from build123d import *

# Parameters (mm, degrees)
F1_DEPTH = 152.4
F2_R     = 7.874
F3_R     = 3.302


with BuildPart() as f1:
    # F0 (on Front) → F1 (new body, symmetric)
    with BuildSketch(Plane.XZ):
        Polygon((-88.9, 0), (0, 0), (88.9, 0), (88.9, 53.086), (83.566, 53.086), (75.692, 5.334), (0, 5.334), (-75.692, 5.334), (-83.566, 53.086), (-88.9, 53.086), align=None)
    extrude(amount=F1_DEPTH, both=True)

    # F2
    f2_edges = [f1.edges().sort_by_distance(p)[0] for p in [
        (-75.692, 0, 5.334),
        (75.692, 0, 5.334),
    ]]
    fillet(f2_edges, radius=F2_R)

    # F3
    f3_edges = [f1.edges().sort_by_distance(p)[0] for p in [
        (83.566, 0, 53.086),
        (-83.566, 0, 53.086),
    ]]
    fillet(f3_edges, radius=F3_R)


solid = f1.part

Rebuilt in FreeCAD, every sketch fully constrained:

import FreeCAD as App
import Part
import Sketcher
Q = App.Units.Quantity


def edges_at(feature, points):
    """Names of the edges that pass closest to the given points."""
    edges = feature.Shape.Edges
    near = lambda p: min(range(len(edges)), key=lambda i: edges[i].distToShape(Part.Vertex(*p))[0])
    return sorted({f"Edge{near(p) + 1}" for p in points})

doc = App.newDocument("Part")
params = doc.addObject("Spreadsheet::Sheet", "Params")
for row, (alias, value) in enumerate([
    ("sketch1_width", "7 in"),
    ("sketch1_width2", "0.21 in"),
    ("sketch1_width3", "5.96 in"),
    ("sketch1_height", "2.09 in"),
    ("pad1_length", "12 in"),
    ("fillet_radius", "0.31 in"),
    ("fillet2_radius", "0.13 in"),
], start=1):
    params.set(f"A{row}", alias)
    params.set(f"B{row}", "=" + value)
    params.setAlias(f"B{row}", alias)

body = doc.addObject("PartDesign::Body", "Body")

# Sketch on XZ plane
sketch1 = body.newObject("Sketcher::SketchObject", "Sketch")
sketch1.AttachmentSupport = (doc.getObject("XZ_Plane"), [""])
sketch1.MapMode = "FlatFace"
sketch1.addGeometry(Part.LineSegment(App.Vector(-88.9, 0, 0), App.Vector(88.9, 0, 0)), False)
sketch1.addGeometry(Part.LineSegment(App.Vector(88.9, 0, 0), App.Vector(88.9, 53.086, 0)), False)
sketch1.addGeometry(Part.LineSegment(App.Vector(88.9, 53.086, 0), App.Vector(83.566, 53.086, 0)), False)
sketch1.addGeometry(Part.LineSegment(App.Vector(83.566, 53.086, 0), App.Vector(75.692, 5.334, 0)), False)
sketch1.addGeometry(Part.LineSegment(App.Vector(75.692, 5.334, 0), App.Vector(-75.692, 5.334, 0)), False)
sketch1.addGeometry(Part.LineSegment(App.Vector(-75.692, 5.334, 0), App.Vector(-83.566, 53.086, 0)), False)
sketch1.addGeometry(Part.LineSegment(App.Vector(-83.566, 53.086, 0), App.Vector(-88.9, 53.086, 0)), False)
sketch1.addGeometry(Part.LineSegment(App.Vector(-88.9, 53.086, 0), App.Vector(-88.9, 0, 0)), False)
sketch1.addConstraint(Sketcher.Constraint("Coincident", 0, 2, 1, 1))
sketch1.addConstraint(Sketcher.Constraint("Coincident", 1, 2, 2, 1))
sketch1.addConstraint(Sketcher.Constraint("Coincident", 2, 2, 3, 1))
sketch1.addConstraint(Sketcher.Constraint("Coincident", 3, 2, 4, 1))
sketch1.addConstraint(Sketcher.Constraint("Coincident", 4, 2, 5, 1))
sketch1.addConstraint(Sketcher.Constraint("Coincident", 5, 2, 6, 1))
sketch1.addConstraint(Sketcher.Constraint("Coincident", 6, 2, 7, 1))
sketch1.addConstraint(Sketcher.Constraint("Coincident", 7, 2, 0, 1))
sketch1.addConstraint(Sketcher.Constraint("Horizontal", 0))
sketch1.addConstraint(Sketcher.Constraint("Vertical", 1))
sketch1.addConstraint(Sketcher.Constraint("Horizontal", 2))
sketch1.addConstraint(Sketcher.Constraint("Horizontal", 4))
sketch1.addConstraint(Sketcher.Constraint("Horizontal", 6))
sketch1.addConstraint(Sketcher.Constraint("Vertical", 7))
sketch1.addConstraint(Sketcher.Constraint("Symmetric", 0, 2, 7, 2, -1, 1))
sketch1.addConstraint(Sketcher.Constraint("Symmetric", 2, 2, 5, 2, -2))
sketch1.addConstraint(Sketcher.Constraint("Equal", 3, 5))
sketch1.addConstraint(Sketcher.Constraint("DistanceX", 0, 1, 0, 2, Q("7 in")))
sketch1.addConstraint(Sketcher.Constraint("DistanceX", 2, 2, 2, 1, Q("0.21 in")))
sketch1.addConstraint(Sketcher.Constraint("DistanceX", 4, 2, 4, 1, Q("5.96 in")))
sketch1.addConstraint(Sketcher.Constraint("DistanceY", 1, 1, 1, 2, Q("2.09 in")))
sketch1.addConstraint(Sketcher.Constraint("DistanceY", -1, 1, 3, 2, Q("0.21 in")))
sketch1.setExpression("Constraints[17]", "Params.sketch1_width")
sketch1.setExpression("Constraints[18]", "Params.sketch1_width2")
sketch1.setExpression("Constraints[19]", "Params.sketch1_width3")
sketch1.setExpression("Constraints[20]", "Params.sketch1_height")
pad1 = body.newObject("PartDesign::Pad", "Pad")
pad1.Profile = sketch1
pad1.setExpression("Length", "Params.pad1_length")
pad1.Midplane = True
doc.recompute()

fillet = body.newObject("PartDesign::Fillet", "Fillet")
fillet.Base = (pad1, edges_at(pad1, [(-75.692, 0, 5.334), (75.692, 0, 5.334)]))
fillet.setExpression("Radius", "Params.fillet_radius")
doc.recompute()

fillet2 = body.newObject("PartDesign::Fillet", "Fillet001")
fillet2.Base = (fillet, edges_at(fillet, [(83.566, 0, 53.086), (-83.566, 0, 53.086)]))
fillet2.setExpression("Radius", "Params.fillet2_radius")

doc.recompute()
